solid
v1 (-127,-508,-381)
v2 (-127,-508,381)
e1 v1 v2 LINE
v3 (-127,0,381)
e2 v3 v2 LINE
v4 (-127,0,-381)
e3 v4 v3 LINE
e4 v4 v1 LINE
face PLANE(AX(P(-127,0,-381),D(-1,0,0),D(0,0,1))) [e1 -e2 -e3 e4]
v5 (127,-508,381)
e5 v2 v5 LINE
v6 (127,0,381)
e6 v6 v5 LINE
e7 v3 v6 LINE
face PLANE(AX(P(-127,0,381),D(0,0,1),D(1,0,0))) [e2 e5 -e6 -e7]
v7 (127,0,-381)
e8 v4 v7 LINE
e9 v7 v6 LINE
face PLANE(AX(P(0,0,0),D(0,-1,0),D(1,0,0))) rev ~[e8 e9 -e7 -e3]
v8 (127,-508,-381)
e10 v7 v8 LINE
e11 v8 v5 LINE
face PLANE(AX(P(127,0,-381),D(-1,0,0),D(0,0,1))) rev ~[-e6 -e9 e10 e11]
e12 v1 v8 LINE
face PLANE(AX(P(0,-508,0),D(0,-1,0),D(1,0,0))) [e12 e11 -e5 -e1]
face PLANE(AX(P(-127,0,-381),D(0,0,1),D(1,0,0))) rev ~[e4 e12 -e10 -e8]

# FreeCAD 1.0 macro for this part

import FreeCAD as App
import Part
import Sketcher
from FreeCAD import Vector
Q = App.Units.Quantity

doc = App.newDocument("Part")
body = doc.addObject("PartDesign::Body", "Body")

sketch1 = doc.addObject("Sketcher::SketchObject", "Sketch")
body.addObject(sketch1)
sketch1.AttachmentSupport = (doc.XZ_Plane, [""])
sketch1.MapMode = "FlatFace"
sketch1.addGeometry(Part.LineSegment(Vector(-127, 381, 0), Vector(-127, -381, 0)), False)
sketch1.addGeometry(Part.LineSegment(Vector(-127, -381, 0), Vector(127, -381, 0)), False)
sketch1.addGeometry(Part.LineSegment(Vector(127, -381, 0), Vector(127, 381, 0)), False)
sketch1.addGeometry(Part.LineSegment(Vector(127, 381, 0), Vector(-127, 381, 0)), False)
sketch1.addConstraint(Sketcher.Constraint("Coincident", 0, 2, 1, 1))
sketch1.addConstraint(Sketcher.Constraint("Coincident", 1, 2, 2, 1))
sketch1.addConstraint(Sketcher.Constraint("Coincident", 2, 2, 3, 1))
sketch1.addConstraint(Sketcher.Constraint("Coincident", 3, 2, 0, 1))
sketch1.addConstraint(Sketcher.Constraint("Vertical", 0))
sketch1.addConstraint(Sketcher.Constraint("Horizontal", 1))
sketch1.addConstraint(Sketcher.Constraint("Vertical", 2))
sketch1.addConstraint(Sketcher.Constraint("Horizontal", 3))
sketch1.addConstraint(Sketcher.Constraint("Symmetric", 0, 2, 2, 2, -1, 1))
sketch1.addConstraint(Sketcher.Constraint("DistanceX", 1, 1, 1, 2, Q("10 in")))
sketch1.addConstraint(Sketcher.Constraint("DistanceY", 0, 2, 0, 1, Q("30 in")))
pad1 = doc.addObject("PartDesign::Pad", "Pad")
body.addObject(pad1)
pad1.Profile = sketch1
pad1.Length = Q("20 in")

doc.recompute()
